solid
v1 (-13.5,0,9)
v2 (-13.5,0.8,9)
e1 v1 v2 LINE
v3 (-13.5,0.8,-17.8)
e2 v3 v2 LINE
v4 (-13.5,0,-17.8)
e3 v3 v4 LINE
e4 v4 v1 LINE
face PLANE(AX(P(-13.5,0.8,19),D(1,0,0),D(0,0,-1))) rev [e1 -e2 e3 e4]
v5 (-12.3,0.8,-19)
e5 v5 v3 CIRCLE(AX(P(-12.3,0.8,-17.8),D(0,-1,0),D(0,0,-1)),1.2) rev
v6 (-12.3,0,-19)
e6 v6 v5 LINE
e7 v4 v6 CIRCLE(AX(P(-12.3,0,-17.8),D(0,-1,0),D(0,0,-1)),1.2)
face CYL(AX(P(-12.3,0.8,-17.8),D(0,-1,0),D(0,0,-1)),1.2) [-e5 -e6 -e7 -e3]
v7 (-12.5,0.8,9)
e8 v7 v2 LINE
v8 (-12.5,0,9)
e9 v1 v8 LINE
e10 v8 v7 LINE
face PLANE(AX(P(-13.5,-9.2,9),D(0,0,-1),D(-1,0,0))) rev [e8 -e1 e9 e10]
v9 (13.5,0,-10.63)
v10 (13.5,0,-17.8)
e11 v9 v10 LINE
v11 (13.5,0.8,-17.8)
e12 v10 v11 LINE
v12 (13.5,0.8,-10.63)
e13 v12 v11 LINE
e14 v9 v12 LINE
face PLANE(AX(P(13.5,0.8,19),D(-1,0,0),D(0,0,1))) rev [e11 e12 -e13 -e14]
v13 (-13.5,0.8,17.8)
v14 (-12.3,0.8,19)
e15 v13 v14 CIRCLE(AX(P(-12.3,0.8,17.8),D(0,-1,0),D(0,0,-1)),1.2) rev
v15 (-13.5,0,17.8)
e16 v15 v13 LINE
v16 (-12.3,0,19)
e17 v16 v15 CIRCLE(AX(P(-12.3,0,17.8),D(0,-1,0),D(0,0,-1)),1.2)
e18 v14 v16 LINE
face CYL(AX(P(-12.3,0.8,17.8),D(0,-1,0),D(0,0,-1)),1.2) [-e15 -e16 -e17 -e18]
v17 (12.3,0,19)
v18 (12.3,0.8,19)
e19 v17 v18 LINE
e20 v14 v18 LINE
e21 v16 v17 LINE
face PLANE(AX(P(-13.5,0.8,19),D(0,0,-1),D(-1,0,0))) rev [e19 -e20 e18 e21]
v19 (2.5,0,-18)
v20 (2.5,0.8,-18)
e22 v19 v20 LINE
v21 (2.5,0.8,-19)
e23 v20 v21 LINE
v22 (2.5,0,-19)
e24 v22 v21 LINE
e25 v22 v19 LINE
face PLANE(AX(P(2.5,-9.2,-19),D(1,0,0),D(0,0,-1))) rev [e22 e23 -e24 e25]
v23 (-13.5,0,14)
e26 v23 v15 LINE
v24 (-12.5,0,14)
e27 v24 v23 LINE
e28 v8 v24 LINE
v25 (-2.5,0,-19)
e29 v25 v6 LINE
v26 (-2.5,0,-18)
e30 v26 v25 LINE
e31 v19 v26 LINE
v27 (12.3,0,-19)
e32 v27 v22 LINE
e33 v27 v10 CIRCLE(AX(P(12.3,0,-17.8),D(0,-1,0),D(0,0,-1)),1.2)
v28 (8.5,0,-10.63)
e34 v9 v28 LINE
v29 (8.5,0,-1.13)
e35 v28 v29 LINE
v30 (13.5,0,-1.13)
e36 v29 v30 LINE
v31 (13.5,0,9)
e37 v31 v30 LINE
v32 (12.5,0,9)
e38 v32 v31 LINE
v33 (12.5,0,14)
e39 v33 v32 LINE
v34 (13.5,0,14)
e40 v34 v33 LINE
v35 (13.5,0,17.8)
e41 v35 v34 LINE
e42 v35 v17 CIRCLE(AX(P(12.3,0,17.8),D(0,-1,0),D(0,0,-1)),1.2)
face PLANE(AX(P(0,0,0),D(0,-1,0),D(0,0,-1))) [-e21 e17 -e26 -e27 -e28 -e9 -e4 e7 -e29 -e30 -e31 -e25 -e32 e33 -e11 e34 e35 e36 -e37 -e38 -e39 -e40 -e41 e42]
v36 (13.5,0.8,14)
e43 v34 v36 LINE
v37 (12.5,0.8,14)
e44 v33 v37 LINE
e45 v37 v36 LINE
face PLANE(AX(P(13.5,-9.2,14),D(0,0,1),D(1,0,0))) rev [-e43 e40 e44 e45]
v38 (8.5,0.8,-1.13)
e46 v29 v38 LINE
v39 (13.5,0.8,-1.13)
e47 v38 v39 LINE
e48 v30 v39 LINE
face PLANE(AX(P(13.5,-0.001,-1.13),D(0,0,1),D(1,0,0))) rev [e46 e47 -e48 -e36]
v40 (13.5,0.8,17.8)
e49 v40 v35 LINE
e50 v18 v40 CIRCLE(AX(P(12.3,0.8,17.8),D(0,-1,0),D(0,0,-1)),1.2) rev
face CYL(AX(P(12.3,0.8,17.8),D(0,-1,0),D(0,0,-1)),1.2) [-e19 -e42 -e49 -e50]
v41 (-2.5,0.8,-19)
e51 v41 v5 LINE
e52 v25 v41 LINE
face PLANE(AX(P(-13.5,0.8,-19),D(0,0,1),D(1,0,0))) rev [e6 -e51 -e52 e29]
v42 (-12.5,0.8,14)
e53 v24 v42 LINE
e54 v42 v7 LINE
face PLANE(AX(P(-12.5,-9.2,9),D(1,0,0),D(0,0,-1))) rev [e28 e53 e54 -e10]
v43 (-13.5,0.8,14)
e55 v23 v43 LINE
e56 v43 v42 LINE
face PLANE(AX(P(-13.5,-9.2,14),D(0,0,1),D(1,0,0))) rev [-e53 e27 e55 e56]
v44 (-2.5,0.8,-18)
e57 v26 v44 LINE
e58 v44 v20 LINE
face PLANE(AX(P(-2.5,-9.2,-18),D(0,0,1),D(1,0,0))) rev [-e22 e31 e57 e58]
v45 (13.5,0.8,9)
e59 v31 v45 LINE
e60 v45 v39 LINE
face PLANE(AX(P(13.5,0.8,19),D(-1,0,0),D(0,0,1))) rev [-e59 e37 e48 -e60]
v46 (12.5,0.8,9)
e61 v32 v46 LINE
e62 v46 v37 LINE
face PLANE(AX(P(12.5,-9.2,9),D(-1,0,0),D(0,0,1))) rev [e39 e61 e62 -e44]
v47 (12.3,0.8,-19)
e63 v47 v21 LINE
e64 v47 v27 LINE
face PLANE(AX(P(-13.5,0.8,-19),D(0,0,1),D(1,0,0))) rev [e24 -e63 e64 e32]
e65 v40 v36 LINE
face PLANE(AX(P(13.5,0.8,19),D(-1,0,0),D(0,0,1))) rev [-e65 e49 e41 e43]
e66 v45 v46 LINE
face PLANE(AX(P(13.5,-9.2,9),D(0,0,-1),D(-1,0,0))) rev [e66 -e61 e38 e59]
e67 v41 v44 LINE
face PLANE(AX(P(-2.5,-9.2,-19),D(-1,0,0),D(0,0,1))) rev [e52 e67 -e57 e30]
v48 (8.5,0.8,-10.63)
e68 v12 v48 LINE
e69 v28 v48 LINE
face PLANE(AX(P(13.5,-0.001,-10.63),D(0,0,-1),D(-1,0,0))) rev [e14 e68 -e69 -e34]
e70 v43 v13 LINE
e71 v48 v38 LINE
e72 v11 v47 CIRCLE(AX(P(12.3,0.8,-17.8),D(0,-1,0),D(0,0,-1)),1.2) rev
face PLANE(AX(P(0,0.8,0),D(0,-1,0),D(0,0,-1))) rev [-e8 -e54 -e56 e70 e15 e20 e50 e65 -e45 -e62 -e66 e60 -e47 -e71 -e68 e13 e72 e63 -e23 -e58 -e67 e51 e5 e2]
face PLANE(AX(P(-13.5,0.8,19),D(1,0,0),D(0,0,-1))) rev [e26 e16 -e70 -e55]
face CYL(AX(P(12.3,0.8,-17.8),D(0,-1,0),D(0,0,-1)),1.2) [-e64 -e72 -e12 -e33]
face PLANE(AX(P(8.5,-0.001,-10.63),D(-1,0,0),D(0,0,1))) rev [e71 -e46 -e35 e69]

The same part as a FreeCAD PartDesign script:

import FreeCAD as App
import Part
import Sketcher

V = App.Vector


def edges_at(feature, points):
    """Names of the edges that pass closest to the given points."""
    edges = feature.Shape.Edges
    near = lambda p: min(range(len(edges)), key=lambda i: edges[i].distToShape(Part.Vertex(*p))[0])
    return sorted({f"Edge{near(p) + 1}" for p in points})


def add_polygon(sketch, points):
    """Adds a closed chain of lines whose ends are joined by coincident constraints."""
    first, n = sketch.GeometryCount, len(points)
    for a, b in zip(points, points[1:] + points[:1]):
        sketch.addGeometry(Part.LineSegment(App.Vector(*a, 0), App.Vector(*b, 0)), False)
    for i in range(n):
        sketch.addConstraint(Sketcher.Constraint("Coincident", first + i, 2, first + (i + 1) % n, 1))

doc = App.newDocument("Part")
body = doc.addObject("PartDesign::Body", "Body")

sketch1 = body.newObject("Sketcher::SketchObject", "Sketch")
sketch1.AttachmentSupport = (doc.getObject("XZ_Plane"), [""])
sketch1.MapMode = "FlatFace"
add_polygon(sketch1, [(-13.5, -19), (-13.5, 19), (13.5, 19), (13.5, -19)])
sketch1.addConstraint([
    Sketcher.Constraint("Vertical", 0),
    Sketcher.Constraint("Horizontal", 1),
    Sketcher.Constraint("Vertical", 2),
    Sketcher.Constraint("Horizontal", 3),
    Sketcher.Constraint("Symmetric", 0, 2, 2, 2, -1, 1),
    Sketcher.Constraint("DistanceX", 1, 1, 1, 2, 27.0),
    Sketcher.Constraint("DistanceY", 0, 1, 0, 2, 38.0),
])
pad1 = body.newObject("PartDesign::Pad", "Pad")
pad1.Profile = sketch1
pad1.Length = 0.8
pad1.Reversed = True
doc.recompute()

fillet = body.newObject("PartDesign::Fillet", "Fillet")
fillet.Base = (pad1, edges_at(pad1, [
    (13.5, 0.4, 19),
    (-13.5, 0.4, 19),
    (-13.5, 0.4, -19),
    (13.5, 0.4, -19),
]))
fillet.Radius = 1.2

sketch2 = body.newObject("Sketcher::SketchObject", "Sketch001")
sketch2.AttachmentSupport = (doc.getObject("XZ_Plane"), [""])
sketch2.MapMode = "FlatFace"
sketch2.AttachmentOffset = App.Placement(V(0, 0, -0.8), App.Rotation())
add_polygon(sketch2, [(8.5, -10.63), (8.5, -1.13), (13.5, -1.13), (13.5, -10.63)])
sketch2.addConstraint([
    Sketcher.Constraint("Vertical", 0),
    Sketcher.Constraint("Horizontal", 1),
    Sketcher.Constraint("Vertical", 2),
    Sketcher.Constraint("Horizontal", 3),
    Sketcher.Constraint("DistanceX", 1, 1, 1, 2, 5.0),
    Sketcher.Constraint("DistanceY", 0, 1, 0, 2, 9.5),
    Sketcher.Constraint("DistanceX", -1, 1, 0, 2, 8.5),
    Sketcher.Constraint("DistanceY", 0, 2, -1, 1, 1.13),
])
pocket1 = body.newObject("PartDesign::Pocket", "Pocket")
pocket1.Profile = sketch2
pocket1.Type = "UpToFirst"
pocket1.Reversed = True

sketch3 = body.newObject("Sketcher::SketchObject", "Sketch002")
sketch3.AttachmentSupport = (doc.getObject("XZ_Plane"), [""])
sketch3.MapMode = "FlatFace"
sketch3.AttachmentOffset = App.Placement(V(0, 0, -0.8), App.Rotation())
add_polygon(sketch3, [(-2.5, -19), (-2.5, -18), (2.5, -18), (2.5, -19)])
add_polygon(sketch3, [(-13.5, 9), (-13.5, 14), (-12.5, 14), (-12.5, 9)])
add_polygon(sketch3, [(12.5, 9), (12.5, 14), (13.5, 14), (13.5, 9)])
sketch3.addConstraint([
    Sketcher.Constraint("Vertical", 0),
    Sketcher.Constraint("Horizontal", 1),
    Sketcher.Constraint("Vertical", 2),
    Sketcher.Constraint("Horizontal", 3),
    Sketcher.Constraint("Vertical", 4),
    Sketcher.Constraint("Horizontal", 5),
    Sketcher.Constraint("Vertical", 6),
    Sketcher.Constraint("Horizontal", 7),
    Sketcher.Constraint("Vertical", 8),
    Sketcher.Constraint("Horizontal", 9),
    Sketcher.Constraint("Vertical", 10),
    Sketcher.Constraint("Horizontal", 11),
    Sketcher.Constraint("Symmetric", 5, 2, 8, 2, -2),
    Sketcher.Constraint("Symmetric", 7, 2, 10, 2, -2),
    Sketcher.Constraint("Equal", 11, 0),
    Sketcher.Constraint("Equal", 3, 4),
    Sketcher.Constraint("DistanceX", 1, 1, 1, 2, 5.0),
    Sketcher.Constraint("DistanceX", 5, 1, 5, 2, 1.0),
    Sketcher.Constraint("DistanceY", 0, 2, -1, 1, 18.0),
    Sketcher.Constraint("DistanceY", -1, 1, 4, 2, 14.0),
    Sketcher.Constraint("DistanceX", 4, 2, 0, 2, 11.0),
    Sketcher.Constraint("DistanceX", 5, 2, 8, 2, 25.0),
])
pocket2 = body.newObject("PartDesign::Pocket", "Pocket001")
pocket2.Profile = sketch3
pocket2.Length = 10
pocket2.Reversed = True

doc.recompute()
